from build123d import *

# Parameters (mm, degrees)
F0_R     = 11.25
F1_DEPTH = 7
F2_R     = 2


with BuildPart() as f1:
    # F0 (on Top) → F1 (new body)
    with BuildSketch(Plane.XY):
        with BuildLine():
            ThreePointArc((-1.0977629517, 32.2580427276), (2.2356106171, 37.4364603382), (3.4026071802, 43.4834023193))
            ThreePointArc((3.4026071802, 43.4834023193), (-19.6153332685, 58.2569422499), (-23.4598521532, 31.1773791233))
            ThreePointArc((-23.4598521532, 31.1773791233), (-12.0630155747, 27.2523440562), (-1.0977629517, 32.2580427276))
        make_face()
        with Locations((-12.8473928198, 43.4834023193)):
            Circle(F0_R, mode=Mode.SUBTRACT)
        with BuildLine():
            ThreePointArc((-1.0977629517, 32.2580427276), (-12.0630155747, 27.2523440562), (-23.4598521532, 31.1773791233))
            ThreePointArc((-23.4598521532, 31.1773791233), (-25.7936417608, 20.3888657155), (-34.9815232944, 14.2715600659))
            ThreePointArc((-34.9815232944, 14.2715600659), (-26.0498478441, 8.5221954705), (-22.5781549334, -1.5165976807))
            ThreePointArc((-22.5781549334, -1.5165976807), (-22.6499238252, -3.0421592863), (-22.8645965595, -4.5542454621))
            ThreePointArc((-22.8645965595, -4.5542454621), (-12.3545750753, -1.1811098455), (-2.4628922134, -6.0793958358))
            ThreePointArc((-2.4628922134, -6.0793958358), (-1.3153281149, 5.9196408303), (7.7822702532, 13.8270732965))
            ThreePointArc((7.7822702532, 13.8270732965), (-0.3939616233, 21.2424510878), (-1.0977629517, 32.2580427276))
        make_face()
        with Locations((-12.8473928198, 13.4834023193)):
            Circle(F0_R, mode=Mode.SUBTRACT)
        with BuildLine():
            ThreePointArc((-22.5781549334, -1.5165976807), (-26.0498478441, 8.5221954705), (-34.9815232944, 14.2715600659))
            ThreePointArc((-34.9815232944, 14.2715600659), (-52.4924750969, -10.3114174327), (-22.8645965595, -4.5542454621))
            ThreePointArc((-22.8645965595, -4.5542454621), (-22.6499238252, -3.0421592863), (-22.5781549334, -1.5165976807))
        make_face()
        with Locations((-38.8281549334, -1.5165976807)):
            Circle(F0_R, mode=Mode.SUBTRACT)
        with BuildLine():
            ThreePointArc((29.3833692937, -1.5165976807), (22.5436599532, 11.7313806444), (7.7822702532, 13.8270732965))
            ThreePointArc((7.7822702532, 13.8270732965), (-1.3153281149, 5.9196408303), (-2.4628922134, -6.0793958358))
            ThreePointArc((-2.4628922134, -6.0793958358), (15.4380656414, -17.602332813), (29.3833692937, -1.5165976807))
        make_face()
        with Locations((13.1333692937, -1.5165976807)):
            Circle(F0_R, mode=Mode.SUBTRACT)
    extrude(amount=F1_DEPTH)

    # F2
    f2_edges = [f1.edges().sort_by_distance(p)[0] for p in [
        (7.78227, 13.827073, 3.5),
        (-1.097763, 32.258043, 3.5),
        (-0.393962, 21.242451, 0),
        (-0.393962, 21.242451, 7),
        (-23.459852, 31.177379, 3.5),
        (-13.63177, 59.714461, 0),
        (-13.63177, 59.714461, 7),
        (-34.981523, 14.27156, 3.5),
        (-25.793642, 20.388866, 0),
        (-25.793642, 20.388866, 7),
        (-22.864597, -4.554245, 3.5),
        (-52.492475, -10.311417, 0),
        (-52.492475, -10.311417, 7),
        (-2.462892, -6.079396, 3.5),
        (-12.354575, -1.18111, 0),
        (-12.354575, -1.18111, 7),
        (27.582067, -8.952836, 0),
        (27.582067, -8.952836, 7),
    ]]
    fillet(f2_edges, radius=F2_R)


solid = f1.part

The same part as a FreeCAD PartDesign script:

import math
import FreeCAD as App
import Part
import Sketcher
Q = App.Units.Quantity


def edges_at(feature, points):
    """Names of the edges that pass closest to the given points."""
    edges = feature.Shape.Edges
    near = lambda p: min(range(len(edges)), key=lambda i: edges[i].distToShape(Part.Vertex(*p))[0])
    return sorted({f"Edge{near(p) + 1}" for p in points})

doc = App.newDocument("Part")
body = doc.addObject("PartDesign::Body", "Body")

sketch1 = body.newObject("Sketcher::SketchObject", "Sketch")
sketch1.AttachmentSupport = (doc.getObject("XY_Plane"), [""])
sketch1.MapMode = "FlatFace"
sketch1.addGeometry([
    Part.ArcOfCircle(Part.Circle(App.Vector(-13, 43, 0), App.Vector(0, 0, 1), 16), math.radians(-44), math.radians(0)),
    Part.ArcOfCircle(Part.Circle(App.Vector(-13, 43, 0), App.Vector(0, 0, 1), 16), math.radians(0), math.radians(229)),
    Part.ArcOfCircle(Part.Circle(App.Vector(-38, 29, 0), App.Vector(0, 0, 1), 15), math.radians(-78), math.radians(10)),
    Part.ArcOfCircle(Part.Circle(App.Vector(-39, -2, 0), App.Vector(0, 0, 1), 16), math.radians(76), math.radians(349)),
    Part.ArcOfCircle(Part.Circle(App.Vector(-13, -16, 0), App.Vector(0, 0, 1), 15), math.radians(42), math.radians(130)),
    Part.ArcOfCircle(Part.Circle(App.Vector(13, -2, 0), App.Vector(0, 0, 1), 16), math.radians(-164), math.radians(0)),
    Part.ArcOfCircle(Part.Circle(App.Vector(13, -2, 0), App.Vector(0, 0, 1), 16), math.radians(0), math.radians(109)),
    Part.ArcOfCircle(Part.Circle(App.Vector(13, 28, 0), App.Vector(0, 0, 1), 15), math.radians(162), math.radians(250)),
    Part.Circle(App.Vector(-39, -2, 0), App.Vector(0, 0, 1), 11),
    Part.Circle(App.Vector(13, -2, 0), App.Vector(0, 0, 1), 11),
    Part.Circle(App.Vector(-13, 13, 0), App.Vector(0, 0, 1), 11),
    Part.Circle(App.Vector(-13, 43, 0), App.Vector(0, 0, 1), 11),
], False)
sketch1.addConstraint([
    Sketcher.Constraint("Tangent", 0, 2, 1, 1),
    Sketcher.Constraint("Coincident", 1, 2, 2, 2),
    Sketcher.Constraint("Coincident", 2, 1, 3, 1),
    Sketcher.Constraint("Coincident", 3, 2, 4, 2),
    Sketcher.Constraint("Coincident", 4, 1, 5, 1),
    Sketcher.Constraint("Tangent", 5, 2, 6, 1),
    Sketcher.Constraint("Coincident", 6, 2, 7, 2),
    Sketcher.Constraint("Coincident", 7, 1, 0, 1),
    Sketcher.Constraint("Coincident", 8, 3, 3, 3),
    Sketcher.Constraint("Coincident", 9, 3, 5, 3),
    Sketcher.Constraint("Coincident", 11, 3, 0, 3),
    Sketcher.Constraint("Equal", 0, 1),
    Sketcher.Constraint("Equal", 1, 3),
    Sketcher.Constraint("Equal", 2, 4),
    Sketcher.Constraint("Equal", 3, 5),
    Sketcher.Constraint("Equal", 5, 6),
    Sketcher.Constraint("Equal", 4, 7),
    Sketcher.Constraint("Equal", 8, 9),
    Sketcher.Constraint("Equal", 9, 10),
    Sketcher.Constraint("Equal", 10, 11),
    Sketcher.Constraint("Horizontal", 3, 3, 5, 3),
    Sketcher.Constraint("Horizontal", 11, 3, 0, 2),
    Sketcher.Constraint("Horizontal", 9, 3, 5, 2),
    Sketcher.Constraint("Vertical", 1, 3, 10, 3),
    Sketcher.Constraint("Diameter", 8, Q("22.5 mm")),
    Sketcher.Constraint("Radius", 0, Q("16.25 mm")),
    Sketcher.Constraint("DistanceY", 3, 3, 0, 3, Q("45 mm")),
    Sketcher.Constraint("DistanceY", 3, 3, 10, 3, Q("15 mm")),
    Sketcher.Constraint("Radius", 2, Q("14.68908 mm")),
    Sketcher.Constraint("DistanceY", 2, 3, 0, 3, Q("14.8221 mm")),
    Sketcher.Constraint("DistanceY", 4, 1, 5, 3, Q("4.562798 mm")),
    Sketcher.Constraint("DistanceX", 6, 2, 5, 3, Q("5.351099 mm")),
    Sketcher.Constraint("DistanceX", 2, 3, -1, 1, Q("37.93184 mm")),
    Sketcher.Constraint("DistanceX", -1, 1, 5, 3, Q("13.133369 mm")),
    Sketcher.Constraint("DistanceY", -1, 1, 7, 3, Q("27.61822 mm")),
    Sketcher.Constraint("DistanceY", -1, 1, 1, 2, Q("31.177379 mm")),
    Sketcher.Constraint("DistanceY", -1, 1, 2, 1, Q("14.27156 mm")),
    Sketcher.Constraint("DistanceX", 3, 3, 4, 3, Q("25.378538 mm")),
    Sketcher.Constraint("DistanceY", 4, 3, 3, 3, Q("14.312718 mm")),
])
pad1 = body.newObject("PartDesign::Pad", "Pad")
pad1.Profile = sketch1
pad1.Length = 7
doc.recompute()

fillet = body.newObject("PartDesign::Fillet", "Fillet")
fillet.Base = (pad1, edges_at(pad1, [
    (7.782, 13.827, 3.5),
    (-1.098, 32.258, 3.5),
    (-0.394, 21.242, 0),
    (-0.394, 21.242, 7),
    (-23.46, 31.177, 3.5),
    (-19.615, 58.257, 0),
    (-19.615, 58.257, 7),
    (-34.982, 14.272, 3.5),
    (-25.794, 20.389, 0),
    (-25.794, 20.389, 7),
    (-22.865, -4.554, 3.5),
    (-52.492, -10.311, 0),
    (-52.492, -10.311, 7),
    (-2.463, -6.079, 3.5),
    (-12.355, -1.181, 0),
    (-12.355, -1.181, 7),
    (15.438, -17.602, 0),
    (15.438, -17.602, 7),
]))
fillet.Radius = 2

doc.recompute()
